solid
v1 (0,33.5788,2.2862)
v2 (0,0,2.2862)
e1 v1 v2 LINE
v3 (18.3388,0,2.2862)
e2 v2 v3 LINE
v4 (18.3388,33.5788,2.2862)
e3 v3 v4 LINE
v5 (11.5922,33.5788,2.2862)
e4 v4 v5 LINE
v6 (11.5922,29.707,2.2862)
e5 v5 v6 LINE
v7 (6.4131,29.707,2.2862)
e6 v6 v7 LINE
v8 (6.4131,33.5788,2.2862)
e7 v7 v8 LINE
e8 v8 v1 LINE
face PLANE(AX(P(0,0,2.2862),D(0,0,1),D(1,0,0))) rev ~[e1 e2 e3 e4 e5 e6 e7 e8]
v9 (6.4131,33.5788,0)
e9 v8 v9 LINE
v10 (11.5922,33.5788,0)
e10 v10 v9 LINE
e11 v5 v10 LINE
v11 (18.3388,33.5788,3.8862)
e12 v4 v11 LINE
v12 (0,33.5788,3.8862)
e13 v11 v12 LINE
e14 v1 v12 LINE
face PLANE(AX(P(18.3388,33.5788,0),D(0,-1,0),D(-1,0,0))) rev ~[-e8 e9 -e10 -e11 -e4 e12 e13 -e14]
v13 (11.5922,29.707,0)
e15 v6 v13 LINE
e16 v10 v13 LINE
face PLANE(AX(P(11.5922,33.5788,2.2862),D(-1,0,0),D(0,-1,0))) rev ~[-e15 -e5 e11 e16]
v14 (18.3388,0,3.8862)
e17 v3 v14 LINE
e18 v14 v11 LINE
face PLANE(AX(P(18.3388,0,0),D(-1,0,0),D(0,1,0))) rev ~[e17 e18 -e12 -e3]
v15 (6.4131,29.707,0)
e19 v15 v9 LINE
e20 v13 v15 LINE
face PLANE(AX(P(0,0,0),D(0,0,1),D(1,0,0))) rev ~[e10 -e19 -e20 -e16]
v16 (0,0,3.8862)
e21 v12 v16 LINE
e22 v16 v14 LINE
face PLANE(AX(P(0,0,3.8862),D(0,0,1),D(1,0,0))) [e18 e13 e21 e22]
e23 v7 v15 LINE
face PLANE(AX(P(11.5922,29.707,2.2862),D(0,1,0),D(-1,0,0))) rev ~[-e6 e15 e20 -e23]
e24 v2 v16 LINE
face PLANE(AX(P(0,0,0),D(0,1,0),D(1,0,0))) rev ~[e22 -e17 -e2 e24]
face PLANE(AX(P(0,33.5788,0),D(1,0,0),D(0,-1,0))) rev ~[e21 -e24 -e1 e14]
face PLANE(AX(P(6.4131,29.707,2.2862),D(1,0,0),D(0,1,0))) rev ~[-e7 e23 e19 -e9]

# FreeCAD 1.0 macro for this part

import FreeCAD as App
import Part
import Sketcher
from FreeCAD import Vector
Q = App.Units.Quantity

doc = App.newDocument("Part")
body = doc.addObject("PartDesign::Body", "Body")

# Sketch on XY plane
sketch1 = doc.addObject("Sketcher::SketchObject", "Sketch")
body.addObject(sketch1)
sketch1.AttachmentSupport = (doc.XY_Plane, [""])
sketch1.MapMode = "FlatFace"
sketch1.addGeometry(Part.LineSegment(Vector(0, 34, 0), Vector(0, 0, 0)), False)
sketch1.addGeometry(Part.LineSegment(Vector(0, 0, 0), Vector(18, 0, 0)), False)
sketch1.addGeometry(Part.LineSegment(Vector(18, 0, 0), Vector(18, 34, 0)), False)
sketch1.addGeometry(Part.LineSegment(Vector(18, 34, 0), Vector(0, 34, 0)), False)
sketch1.addConstraint(Sketcher.Constraint("Coincident", 0, 2, 1, 1))
sketch1.addConstraint(Sketcher.Constraint("Coincident", 1, 2, 2, 1))
sketch1.addConstraint(Sketcher.Constraint("Coincident", 2, 2, 3, 1))
sketch1.addConstraint(Sketcher.Constraint("Coincident", 3, 2, 0, 1))
sketch1.addConstraint(Sketcher.Constraint("Vertical", 0))
sketch1.addConstraint(Sketcher.Constraint("Horizontal", 1))
sketch1.addConstraint(Sketcher.Constraint("Vertical", 2))
sketch1.addConstraint(Sketcher.Constraint("Horizontal", 3))
sketch1.addConstraint(Sketcher.Constraint("Coincident", 0, 2, -1, 1))
sketch1.addConstraint(Sketcher.Constraint("DistanceX", 1, 1, 1, 2, Q("0.722 in")))
sketch1.addConstraint(Sketcher.Constraint("DistanceY", 0, 2, 0, 1, Q("1.322 in")))
pad1 = doc.addObject("PartDesign::Pad", "Pad")
body.addObject(pad1)
pad1.Profile = sketch1
pad1.Length = Q("0.153 in")

# Sketch on XY plane
sketch2 = doc.addObject("Sketcher::SketchObject", "Sketch001")
body.addObject(sketch2)
sketch2.AttachmentSupport = (doc.XY_Plane, [""])
sketch2.MapMode = "FlatFace"
sketch2.AttachmentOffset = App.Placement(Vector(0, 0, 0.0900079 * 25.4), App.Rotation())
sketch2.addGeometry(Part.LineSegment(Vector(6.4, 29.7, 0), Vector(6.4, 33.6, 0)), False)
sketch2.addGeometry(Part.LineSegment(Vector(6.4, 33.6, 0), Vector(0, 33.6, 0)), False)
sketch2.addGeometry(Part.LineSegment(Vector(0, 33.6, 0), Vector(0, 0, 0)), False)
sketch2.addGeometry(Part.LineSegment(Vector(0, 0, 0), Vector(18.3, 0, 0)), False)
sketch2.addGeometry(Part.LineSegment(Vector(18.3, 0, 0), Vector(18.3, 33.6, 0)), False)
sketch2.addGeometry(Part.LineSegment(Vector(18.3, 33.6, 0), Vector(11.6, 33.6, 0)), False)
sketch2.addGeometry(Part.LineSegment(Vector(11.6, 33.6, 0), Vector(11.6, 29.7, 0)), False)
sketch2.addGeometry(Part.LineSegment(Vector(11.6, 29.7, 0), Vector(6.4, 29.7, 0)), False)
sketch2.addConstraint(Sketcher.Constraint("Coincident", 0, 2, 1, 1))
sketch2.addConstraint(Sketcher.Constraint("Coincident", 1, 2, 2, 1))
sketch2.addConstraint(Sketcher.Constraint("Coincident", 2, 2, 3, 1))
sketch2.addConstraint(Sketcher.Constraint("Coincident", 3, 2, 4, 1))
sketch2.addConstraint(Sketcher.Constraint("Coincident", 4, 2, 5, 1))
sketch2.addConstraint(Sketcher.Constraint("Coincident", 5, 2, 6, 1))
sketch2.addConstraint(Sketcher.Constraint("Coincident", 6, 2, 7, 1))
sketch2.addConstraint(Sketcher.Constraint("Coincident", 7, 2, 0, 1))
sketch2.addConstraint(Sketcher.Constraint("Vertical", 0))
sketch2.addConstraint(Sketcher.Constraint("Horizontal", 1))
sketch2.addConstraint(Sketcher.Constraint("Vertical", 2))
sketch2.addConstraint(Sketcher.Constraint("Horizontal", 3))
sketch2.addConstraint(Sketcher.Constraint("Vertical", 4))
sketch2.addConstraint(Sketcher.Constraint("Horizontal", 5))
sketch2.addConstraint(Sketcher.Constraint("Vertical", 6))
sketch2.addConstraint(Sketcher.Constraint("Horizontal", 7))
sketch2.addConstraint(Sketcher.Constraint("Coincident", 2, 2, -1, 1))
sketch2.addConstraint(Sketcher.Constraint("Horizontal", 1, 2, 4, 2))
sketch2.addConstraint(Sketcher.Constraint("DistanceX", 3, 1, 3, 2, Q("0.722 in")))
sketch2.addConstraint(Sketcher.Constraint("DistanceY", 2, 2, 2, 1, Q("1.322 in")))
sketch2.addConstraint(Sketcher.Constraint("DistanceX", 7, 2, 7, 1, Q("0.2039 in")))
sketch2.addConstraint(Sketcher.Constraint("DistanceX", 1, 2, 1, 1, 6.413))
sketch2.addConstraint(Sketcher.Constraint("DistanceY", 0, 1, 0, 2, 3.8718))
pocket1 = doc.addObject("PartDesign::Pocket", "Pocket")
body.addObject(pocket1)
pocket1.Profile = sketch2
pocket1.Length = Q("1 in")

doc.recompute()
